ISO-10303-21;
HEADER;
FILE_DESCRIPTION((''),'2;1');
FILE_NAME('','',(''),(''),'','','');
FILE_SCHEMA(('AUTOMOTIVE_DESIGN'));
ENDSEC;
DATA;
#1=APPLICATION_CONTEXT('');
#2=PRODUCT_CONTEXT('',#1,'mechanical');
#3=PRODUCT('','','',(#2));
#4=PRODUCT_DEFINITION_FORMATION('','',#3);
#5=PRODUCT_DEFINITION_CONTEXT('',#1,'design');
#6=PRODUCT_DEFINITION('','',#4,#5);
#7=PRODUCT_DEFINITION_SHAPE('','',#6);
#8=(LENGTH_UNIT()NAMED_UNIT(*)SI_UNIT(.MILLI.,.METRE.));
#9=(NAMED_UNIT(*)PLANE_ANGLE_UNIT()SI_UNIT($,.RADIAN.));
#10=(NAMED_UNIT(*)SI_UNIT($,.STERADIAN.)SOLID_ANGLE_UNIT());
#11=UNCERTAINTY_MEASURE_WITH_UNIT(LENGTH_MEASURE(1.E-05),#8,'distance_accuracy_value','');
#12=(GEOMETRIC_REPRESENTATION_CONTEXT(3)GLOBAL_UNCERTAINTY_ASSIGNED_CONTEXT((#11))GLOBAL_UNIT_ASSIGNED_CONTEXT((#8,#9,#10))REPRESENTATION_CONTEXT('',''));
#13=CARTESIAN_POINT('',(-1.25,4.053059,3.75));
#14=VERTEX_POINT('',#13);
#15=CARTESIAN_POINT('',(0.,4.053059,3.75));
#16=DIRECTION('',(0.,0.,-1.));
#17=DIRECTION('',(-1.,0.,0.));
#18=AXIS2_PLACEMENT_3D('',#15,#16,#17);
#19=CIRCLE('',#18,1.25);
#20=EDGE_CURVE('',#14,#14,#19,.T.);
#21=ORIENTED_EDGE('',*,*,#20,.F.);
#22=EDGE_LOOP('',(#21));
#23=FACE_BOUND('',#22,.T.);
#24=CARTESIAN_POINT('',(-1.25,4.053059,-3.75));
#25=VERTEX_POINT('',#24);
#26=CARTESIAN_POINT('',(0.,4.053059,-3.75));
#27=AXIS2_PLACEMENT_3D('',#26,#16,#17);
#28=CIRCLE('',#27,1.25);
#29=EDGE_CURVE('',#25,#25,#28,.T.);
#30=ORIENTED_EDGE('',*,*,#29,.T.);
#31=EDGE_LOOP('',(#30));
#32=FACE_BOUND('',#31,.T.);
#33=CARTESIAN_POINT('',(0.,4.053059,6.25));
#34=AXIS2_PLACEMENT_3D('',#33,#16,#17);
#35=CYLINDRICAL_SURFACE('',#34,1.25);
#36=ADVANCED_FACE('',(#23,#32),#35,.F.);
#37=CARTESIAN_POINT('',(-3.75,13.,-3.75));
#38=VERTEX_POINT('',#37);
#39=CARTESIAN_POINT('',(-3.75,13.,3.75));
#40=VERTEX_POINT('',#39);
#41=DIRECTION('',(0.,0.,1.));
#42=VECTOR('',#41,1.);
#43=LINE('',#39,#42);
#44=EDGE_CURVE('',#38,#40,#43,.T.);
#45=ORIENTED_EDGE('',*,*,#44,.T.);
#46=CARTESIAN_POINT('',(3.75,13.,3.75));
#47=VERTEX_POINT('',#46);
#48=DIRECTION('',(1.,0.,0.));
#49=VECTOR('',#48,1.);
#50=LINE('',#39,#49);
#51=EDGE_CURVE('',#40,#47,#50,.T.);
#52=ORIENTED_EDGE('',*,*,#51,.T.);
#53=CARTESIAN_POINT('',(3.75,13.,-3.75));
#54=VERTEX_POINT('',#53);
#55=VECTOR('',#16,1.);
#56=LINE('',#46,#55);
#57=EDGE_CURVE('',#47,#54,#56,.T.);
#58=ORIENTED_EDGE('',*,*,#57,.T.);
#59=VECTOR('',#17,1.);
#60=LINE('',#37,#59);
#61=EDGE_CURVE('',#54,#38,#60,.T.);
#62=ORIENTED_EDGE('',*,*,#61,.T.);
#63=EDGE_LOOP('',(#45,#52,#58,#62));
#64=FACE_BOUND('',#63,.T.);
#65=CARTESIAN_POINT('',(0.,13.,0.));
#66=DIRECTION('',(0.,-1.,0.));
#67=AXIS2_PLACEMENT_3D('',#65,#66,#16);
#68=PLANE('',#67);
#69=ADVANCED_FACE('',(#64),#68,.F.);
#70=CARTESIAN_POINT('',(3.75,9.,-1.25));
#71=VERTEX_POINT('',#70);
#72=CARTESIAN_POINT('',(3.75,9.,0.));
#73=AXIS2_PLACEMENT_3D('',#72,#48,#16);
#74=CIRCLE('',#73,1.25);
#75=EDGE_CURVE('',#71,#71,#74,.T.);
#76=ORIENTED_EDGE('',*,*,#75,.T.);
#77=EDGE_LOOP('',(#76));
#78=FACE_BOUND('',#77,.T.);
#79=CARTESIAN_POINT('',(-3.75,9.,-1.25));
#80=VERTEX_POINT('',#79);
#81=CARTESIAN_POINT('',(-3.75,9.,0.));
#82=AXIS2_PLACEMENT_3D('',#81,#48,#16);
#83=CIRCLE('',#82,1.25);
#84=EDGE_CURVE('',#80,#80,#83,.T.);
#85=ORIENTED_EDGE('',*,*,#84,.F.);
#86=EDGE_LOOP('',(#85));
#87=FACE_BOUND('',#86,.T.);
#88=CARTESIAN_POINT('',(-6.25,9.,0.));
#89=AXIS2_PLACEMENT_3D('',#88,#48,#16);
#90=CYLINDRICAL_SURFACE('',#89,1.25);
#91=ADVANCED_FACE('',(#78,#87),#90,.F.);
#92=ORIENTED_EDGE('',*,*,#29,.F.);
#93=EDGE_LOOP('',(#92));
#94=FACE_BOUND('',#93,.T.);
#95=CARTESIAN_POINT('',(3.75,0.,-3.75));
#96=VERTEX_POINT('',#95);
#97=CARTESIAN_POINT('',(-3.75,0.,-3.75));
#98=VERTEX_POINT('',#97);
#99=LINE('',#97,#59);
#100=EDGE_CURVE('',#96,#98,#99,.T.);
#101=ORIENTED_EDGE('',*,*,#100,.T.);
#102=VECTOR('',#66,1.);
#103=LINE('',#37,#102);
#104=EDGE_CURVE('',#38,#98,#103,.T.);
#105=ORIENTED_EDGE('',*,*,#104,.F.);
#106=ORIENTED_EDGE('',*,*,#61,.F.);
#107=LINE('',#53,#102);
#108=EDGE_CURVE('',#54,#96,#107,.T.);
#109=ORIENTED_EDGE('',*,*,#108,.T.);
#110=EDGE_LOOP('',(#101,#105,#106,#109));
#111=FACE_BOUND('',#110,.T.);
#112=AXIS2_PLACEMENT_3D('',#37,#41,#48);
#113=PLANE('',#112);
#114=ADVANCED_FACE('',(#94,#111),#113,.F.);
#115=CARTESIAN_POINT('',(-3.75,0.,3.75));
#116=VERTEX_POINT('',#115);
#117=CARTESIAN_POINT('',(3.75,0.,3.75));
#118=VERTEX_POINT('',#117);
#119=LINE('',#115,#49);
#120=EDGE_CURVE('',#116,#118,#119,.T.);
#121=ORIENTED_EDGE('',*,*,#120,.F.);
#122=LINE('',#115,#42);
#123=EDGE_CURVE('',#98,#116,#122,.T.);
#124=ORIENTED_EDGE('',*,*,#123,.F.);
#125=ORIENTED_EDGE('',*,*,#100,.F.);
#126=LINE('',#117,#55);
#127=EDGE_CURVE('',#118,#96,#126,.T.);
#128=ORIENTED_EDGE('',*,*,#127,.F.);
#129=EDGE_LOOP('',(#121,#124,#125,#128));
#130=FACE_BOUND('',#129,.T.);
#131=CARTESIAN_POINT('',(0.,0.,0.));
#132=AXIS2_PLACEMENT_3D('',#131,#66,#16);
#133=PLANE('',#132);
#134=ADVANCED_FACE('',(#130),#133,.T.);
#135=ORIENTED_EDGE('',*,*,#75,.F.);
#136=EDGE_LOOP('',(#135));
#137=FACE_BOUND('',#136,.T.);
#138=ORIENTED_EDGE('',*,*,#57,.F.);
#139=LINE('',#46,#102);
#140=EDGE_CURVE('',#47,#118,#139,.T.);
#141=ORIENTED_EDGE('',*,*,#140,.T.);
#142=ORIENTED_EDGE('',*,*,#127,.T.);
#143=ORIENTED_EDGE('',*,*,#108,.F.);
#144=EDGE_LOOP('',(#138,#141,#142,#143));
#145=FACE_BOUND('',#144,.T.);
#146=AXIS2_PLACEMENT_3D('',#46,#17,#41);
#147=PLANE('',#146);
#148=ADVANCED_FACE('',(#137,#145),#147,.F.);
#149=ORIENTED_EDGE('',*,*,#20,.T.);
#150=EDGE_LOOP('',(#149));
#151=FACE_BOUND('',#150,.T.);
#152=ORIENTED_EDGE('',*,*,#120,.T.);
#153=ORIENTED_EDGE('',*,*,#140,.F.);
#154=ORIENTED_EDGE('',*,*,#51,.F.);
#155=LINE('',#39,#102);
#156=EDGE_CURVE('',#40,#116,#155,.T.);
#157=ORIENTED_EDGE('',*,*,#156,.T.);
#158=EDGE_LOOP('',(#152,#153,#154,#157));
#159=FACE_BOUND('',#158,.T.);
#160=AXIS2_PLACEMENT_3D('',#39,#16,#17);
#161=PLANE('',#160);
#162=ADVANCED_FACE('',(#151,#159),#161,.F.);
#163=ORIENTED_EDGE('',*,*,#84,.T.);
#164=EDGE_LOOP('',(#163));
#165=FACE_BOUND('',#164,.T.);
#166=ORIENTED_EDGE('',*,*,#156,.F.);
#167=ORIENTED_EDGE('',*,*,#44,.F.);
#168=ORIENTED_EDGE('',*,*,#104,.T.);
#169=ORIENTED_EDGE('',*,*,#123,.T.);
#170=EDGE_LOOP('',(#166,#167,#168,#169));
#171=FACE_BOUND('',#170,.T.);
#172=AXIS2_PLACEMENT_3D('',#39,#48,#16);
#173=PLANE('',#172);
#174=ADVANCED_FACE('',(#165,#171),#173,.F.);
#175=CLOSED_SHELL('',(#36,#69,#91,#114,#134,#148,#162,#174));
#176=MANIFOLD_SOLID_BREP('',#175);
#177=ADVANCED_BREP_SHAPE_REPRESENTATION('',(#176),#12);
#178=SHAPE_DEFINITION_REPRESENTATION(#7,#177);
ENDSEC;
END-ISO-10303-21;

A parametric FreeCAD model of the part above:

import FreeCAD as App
import Part
import Sketcher

doc = App.newDocument("Part")
body = doc.addObject("PartDesign::Body", "Body")

sketch1 = body.newObject("Sketcher::SketchObject", "Sketch")
sketch1.AttachmentSupport = (doc.getObject("XZ_Plane"), [""])
sketch1.MapMode = "FlatFace"
sketch1.addGeometry(Part.LineSegment(App.Vector(-4, -4, 0), App.Vector(-4, 4, 0)), False)
sketch1.addGeometry(Part.LineSegment(App.Vector(-4, 4, 0), App.Vector(4, 4, 0)), False)
sketch1.addGeometry(Part.LineSegment(App.Vector(4, 4, 0), App.Vector(4, -4, 0)), False)
sketch1.addGeometry(Part.LineSegment(App.Vector(4, -4, 0), App.Vector(-4, -4, 0)), False)
sketch1.addConstraint(Sketcher.Constraint("Coincident", 0, 2, 1, 1))
sketch1.addConstraint(Sketcher.Constraint("Coincident", 1, 2, 2, 1))
sketch1.addConstraint(Sketcher.Constraint("Coincident", 2, 2, 3, 1))
sketch1.addConstraint(Sketcher.Constraint("Coincident", 3, 2, 0, 1))
sketch1.addConstraint(Sketcher.Constraint("Vertical", 0))
sketch1.addConstraint(Sketcher.Constraint("Horizontal", 1))
sketch1.addConstraint(Sketcher.Constraint("Vertical", 2))
sketch1.addConstraint(Sketcher.Constraint("Horizontal", 3))
sketch1.addConstraint(Sketcher.Constraint("Symmetric", 0, 2, 2, 2, -1, 1))
sketch1.addConstraint(Sketcher.Constraint("Equal", 3, 0))
sketch1.addConstraint(Sketcher.Constraint("DistanceX", 1, 1, 1, 2, 7.5))
pad1 = body.newObject("PartDesign::Pad", "Pad")
pad1.Profile = sketch1
pad1.Length = 13
pad1.Reversed = True

sketch2 = body.newObject("Sketcher::SketchObject", "Sketch001")
sketch2.AttachmentSupport = (doc.getObject("XY_Plane"), [""])
sketch2.MapMode = "FlatFace"
sketch2.AttachmentOffset = App.Placement(App.Vector(0, 0, -3.75), App.Rotation())
sketch2.addGeometry(Part.Circle(App.Vector(0, 4.1, 0), App.Vector(0, 0, 1), 1.2), False)
sketch2.addConstraint(Sketcher.Constraint("PointOnObject", 0, 3, -2))
sketch2.addConstraint(Sketcher.Constraint("Diameter", 0, 2.5))
sketch2.addConstraint(Sketcher.Constraint("DistanceY", -1, 1, 0, 3, 4.053059))
pocket1 = body.newObject("PartDesign::Pocket", "Pocket")
pocket1.Profile = sketch2
pocket1.Length = 10
pocket1.Reversed = True

sketch3 = body.newObject("Sketcher::SketchObject", "Sketch002")
sketch3.AttachmentSupport = (doc.getObject("YZ_Plane"), [""])
sketch3.MapMode = "FlatFace"
sketch3.AttachmentOffset = App.Placement(App.Vector(0, 0, 3.75), App.Rotation())
sketch3.addGeometry(Part.Circle(App.Vector(9, 0, 0), App.Vector(0, 0, 1), 1.2), False)
sketch3.addConstraint(Sketcher.Constraint("PointOnObject", 0, 3, -1))
sketch3.addConstraint(Sketcher.Constraint("Diameter", 0, 2.5))
sketch3.addConstraint(Sketcher.Constraint("DistanceX", -1, 1, 0, 3, 9.0))
pocket2 = body.newObject("PartDesign::Pocket", "Pocket001")
pocket2.Profile = sketch3
pocket2.Length = 10

doc.recompute()
